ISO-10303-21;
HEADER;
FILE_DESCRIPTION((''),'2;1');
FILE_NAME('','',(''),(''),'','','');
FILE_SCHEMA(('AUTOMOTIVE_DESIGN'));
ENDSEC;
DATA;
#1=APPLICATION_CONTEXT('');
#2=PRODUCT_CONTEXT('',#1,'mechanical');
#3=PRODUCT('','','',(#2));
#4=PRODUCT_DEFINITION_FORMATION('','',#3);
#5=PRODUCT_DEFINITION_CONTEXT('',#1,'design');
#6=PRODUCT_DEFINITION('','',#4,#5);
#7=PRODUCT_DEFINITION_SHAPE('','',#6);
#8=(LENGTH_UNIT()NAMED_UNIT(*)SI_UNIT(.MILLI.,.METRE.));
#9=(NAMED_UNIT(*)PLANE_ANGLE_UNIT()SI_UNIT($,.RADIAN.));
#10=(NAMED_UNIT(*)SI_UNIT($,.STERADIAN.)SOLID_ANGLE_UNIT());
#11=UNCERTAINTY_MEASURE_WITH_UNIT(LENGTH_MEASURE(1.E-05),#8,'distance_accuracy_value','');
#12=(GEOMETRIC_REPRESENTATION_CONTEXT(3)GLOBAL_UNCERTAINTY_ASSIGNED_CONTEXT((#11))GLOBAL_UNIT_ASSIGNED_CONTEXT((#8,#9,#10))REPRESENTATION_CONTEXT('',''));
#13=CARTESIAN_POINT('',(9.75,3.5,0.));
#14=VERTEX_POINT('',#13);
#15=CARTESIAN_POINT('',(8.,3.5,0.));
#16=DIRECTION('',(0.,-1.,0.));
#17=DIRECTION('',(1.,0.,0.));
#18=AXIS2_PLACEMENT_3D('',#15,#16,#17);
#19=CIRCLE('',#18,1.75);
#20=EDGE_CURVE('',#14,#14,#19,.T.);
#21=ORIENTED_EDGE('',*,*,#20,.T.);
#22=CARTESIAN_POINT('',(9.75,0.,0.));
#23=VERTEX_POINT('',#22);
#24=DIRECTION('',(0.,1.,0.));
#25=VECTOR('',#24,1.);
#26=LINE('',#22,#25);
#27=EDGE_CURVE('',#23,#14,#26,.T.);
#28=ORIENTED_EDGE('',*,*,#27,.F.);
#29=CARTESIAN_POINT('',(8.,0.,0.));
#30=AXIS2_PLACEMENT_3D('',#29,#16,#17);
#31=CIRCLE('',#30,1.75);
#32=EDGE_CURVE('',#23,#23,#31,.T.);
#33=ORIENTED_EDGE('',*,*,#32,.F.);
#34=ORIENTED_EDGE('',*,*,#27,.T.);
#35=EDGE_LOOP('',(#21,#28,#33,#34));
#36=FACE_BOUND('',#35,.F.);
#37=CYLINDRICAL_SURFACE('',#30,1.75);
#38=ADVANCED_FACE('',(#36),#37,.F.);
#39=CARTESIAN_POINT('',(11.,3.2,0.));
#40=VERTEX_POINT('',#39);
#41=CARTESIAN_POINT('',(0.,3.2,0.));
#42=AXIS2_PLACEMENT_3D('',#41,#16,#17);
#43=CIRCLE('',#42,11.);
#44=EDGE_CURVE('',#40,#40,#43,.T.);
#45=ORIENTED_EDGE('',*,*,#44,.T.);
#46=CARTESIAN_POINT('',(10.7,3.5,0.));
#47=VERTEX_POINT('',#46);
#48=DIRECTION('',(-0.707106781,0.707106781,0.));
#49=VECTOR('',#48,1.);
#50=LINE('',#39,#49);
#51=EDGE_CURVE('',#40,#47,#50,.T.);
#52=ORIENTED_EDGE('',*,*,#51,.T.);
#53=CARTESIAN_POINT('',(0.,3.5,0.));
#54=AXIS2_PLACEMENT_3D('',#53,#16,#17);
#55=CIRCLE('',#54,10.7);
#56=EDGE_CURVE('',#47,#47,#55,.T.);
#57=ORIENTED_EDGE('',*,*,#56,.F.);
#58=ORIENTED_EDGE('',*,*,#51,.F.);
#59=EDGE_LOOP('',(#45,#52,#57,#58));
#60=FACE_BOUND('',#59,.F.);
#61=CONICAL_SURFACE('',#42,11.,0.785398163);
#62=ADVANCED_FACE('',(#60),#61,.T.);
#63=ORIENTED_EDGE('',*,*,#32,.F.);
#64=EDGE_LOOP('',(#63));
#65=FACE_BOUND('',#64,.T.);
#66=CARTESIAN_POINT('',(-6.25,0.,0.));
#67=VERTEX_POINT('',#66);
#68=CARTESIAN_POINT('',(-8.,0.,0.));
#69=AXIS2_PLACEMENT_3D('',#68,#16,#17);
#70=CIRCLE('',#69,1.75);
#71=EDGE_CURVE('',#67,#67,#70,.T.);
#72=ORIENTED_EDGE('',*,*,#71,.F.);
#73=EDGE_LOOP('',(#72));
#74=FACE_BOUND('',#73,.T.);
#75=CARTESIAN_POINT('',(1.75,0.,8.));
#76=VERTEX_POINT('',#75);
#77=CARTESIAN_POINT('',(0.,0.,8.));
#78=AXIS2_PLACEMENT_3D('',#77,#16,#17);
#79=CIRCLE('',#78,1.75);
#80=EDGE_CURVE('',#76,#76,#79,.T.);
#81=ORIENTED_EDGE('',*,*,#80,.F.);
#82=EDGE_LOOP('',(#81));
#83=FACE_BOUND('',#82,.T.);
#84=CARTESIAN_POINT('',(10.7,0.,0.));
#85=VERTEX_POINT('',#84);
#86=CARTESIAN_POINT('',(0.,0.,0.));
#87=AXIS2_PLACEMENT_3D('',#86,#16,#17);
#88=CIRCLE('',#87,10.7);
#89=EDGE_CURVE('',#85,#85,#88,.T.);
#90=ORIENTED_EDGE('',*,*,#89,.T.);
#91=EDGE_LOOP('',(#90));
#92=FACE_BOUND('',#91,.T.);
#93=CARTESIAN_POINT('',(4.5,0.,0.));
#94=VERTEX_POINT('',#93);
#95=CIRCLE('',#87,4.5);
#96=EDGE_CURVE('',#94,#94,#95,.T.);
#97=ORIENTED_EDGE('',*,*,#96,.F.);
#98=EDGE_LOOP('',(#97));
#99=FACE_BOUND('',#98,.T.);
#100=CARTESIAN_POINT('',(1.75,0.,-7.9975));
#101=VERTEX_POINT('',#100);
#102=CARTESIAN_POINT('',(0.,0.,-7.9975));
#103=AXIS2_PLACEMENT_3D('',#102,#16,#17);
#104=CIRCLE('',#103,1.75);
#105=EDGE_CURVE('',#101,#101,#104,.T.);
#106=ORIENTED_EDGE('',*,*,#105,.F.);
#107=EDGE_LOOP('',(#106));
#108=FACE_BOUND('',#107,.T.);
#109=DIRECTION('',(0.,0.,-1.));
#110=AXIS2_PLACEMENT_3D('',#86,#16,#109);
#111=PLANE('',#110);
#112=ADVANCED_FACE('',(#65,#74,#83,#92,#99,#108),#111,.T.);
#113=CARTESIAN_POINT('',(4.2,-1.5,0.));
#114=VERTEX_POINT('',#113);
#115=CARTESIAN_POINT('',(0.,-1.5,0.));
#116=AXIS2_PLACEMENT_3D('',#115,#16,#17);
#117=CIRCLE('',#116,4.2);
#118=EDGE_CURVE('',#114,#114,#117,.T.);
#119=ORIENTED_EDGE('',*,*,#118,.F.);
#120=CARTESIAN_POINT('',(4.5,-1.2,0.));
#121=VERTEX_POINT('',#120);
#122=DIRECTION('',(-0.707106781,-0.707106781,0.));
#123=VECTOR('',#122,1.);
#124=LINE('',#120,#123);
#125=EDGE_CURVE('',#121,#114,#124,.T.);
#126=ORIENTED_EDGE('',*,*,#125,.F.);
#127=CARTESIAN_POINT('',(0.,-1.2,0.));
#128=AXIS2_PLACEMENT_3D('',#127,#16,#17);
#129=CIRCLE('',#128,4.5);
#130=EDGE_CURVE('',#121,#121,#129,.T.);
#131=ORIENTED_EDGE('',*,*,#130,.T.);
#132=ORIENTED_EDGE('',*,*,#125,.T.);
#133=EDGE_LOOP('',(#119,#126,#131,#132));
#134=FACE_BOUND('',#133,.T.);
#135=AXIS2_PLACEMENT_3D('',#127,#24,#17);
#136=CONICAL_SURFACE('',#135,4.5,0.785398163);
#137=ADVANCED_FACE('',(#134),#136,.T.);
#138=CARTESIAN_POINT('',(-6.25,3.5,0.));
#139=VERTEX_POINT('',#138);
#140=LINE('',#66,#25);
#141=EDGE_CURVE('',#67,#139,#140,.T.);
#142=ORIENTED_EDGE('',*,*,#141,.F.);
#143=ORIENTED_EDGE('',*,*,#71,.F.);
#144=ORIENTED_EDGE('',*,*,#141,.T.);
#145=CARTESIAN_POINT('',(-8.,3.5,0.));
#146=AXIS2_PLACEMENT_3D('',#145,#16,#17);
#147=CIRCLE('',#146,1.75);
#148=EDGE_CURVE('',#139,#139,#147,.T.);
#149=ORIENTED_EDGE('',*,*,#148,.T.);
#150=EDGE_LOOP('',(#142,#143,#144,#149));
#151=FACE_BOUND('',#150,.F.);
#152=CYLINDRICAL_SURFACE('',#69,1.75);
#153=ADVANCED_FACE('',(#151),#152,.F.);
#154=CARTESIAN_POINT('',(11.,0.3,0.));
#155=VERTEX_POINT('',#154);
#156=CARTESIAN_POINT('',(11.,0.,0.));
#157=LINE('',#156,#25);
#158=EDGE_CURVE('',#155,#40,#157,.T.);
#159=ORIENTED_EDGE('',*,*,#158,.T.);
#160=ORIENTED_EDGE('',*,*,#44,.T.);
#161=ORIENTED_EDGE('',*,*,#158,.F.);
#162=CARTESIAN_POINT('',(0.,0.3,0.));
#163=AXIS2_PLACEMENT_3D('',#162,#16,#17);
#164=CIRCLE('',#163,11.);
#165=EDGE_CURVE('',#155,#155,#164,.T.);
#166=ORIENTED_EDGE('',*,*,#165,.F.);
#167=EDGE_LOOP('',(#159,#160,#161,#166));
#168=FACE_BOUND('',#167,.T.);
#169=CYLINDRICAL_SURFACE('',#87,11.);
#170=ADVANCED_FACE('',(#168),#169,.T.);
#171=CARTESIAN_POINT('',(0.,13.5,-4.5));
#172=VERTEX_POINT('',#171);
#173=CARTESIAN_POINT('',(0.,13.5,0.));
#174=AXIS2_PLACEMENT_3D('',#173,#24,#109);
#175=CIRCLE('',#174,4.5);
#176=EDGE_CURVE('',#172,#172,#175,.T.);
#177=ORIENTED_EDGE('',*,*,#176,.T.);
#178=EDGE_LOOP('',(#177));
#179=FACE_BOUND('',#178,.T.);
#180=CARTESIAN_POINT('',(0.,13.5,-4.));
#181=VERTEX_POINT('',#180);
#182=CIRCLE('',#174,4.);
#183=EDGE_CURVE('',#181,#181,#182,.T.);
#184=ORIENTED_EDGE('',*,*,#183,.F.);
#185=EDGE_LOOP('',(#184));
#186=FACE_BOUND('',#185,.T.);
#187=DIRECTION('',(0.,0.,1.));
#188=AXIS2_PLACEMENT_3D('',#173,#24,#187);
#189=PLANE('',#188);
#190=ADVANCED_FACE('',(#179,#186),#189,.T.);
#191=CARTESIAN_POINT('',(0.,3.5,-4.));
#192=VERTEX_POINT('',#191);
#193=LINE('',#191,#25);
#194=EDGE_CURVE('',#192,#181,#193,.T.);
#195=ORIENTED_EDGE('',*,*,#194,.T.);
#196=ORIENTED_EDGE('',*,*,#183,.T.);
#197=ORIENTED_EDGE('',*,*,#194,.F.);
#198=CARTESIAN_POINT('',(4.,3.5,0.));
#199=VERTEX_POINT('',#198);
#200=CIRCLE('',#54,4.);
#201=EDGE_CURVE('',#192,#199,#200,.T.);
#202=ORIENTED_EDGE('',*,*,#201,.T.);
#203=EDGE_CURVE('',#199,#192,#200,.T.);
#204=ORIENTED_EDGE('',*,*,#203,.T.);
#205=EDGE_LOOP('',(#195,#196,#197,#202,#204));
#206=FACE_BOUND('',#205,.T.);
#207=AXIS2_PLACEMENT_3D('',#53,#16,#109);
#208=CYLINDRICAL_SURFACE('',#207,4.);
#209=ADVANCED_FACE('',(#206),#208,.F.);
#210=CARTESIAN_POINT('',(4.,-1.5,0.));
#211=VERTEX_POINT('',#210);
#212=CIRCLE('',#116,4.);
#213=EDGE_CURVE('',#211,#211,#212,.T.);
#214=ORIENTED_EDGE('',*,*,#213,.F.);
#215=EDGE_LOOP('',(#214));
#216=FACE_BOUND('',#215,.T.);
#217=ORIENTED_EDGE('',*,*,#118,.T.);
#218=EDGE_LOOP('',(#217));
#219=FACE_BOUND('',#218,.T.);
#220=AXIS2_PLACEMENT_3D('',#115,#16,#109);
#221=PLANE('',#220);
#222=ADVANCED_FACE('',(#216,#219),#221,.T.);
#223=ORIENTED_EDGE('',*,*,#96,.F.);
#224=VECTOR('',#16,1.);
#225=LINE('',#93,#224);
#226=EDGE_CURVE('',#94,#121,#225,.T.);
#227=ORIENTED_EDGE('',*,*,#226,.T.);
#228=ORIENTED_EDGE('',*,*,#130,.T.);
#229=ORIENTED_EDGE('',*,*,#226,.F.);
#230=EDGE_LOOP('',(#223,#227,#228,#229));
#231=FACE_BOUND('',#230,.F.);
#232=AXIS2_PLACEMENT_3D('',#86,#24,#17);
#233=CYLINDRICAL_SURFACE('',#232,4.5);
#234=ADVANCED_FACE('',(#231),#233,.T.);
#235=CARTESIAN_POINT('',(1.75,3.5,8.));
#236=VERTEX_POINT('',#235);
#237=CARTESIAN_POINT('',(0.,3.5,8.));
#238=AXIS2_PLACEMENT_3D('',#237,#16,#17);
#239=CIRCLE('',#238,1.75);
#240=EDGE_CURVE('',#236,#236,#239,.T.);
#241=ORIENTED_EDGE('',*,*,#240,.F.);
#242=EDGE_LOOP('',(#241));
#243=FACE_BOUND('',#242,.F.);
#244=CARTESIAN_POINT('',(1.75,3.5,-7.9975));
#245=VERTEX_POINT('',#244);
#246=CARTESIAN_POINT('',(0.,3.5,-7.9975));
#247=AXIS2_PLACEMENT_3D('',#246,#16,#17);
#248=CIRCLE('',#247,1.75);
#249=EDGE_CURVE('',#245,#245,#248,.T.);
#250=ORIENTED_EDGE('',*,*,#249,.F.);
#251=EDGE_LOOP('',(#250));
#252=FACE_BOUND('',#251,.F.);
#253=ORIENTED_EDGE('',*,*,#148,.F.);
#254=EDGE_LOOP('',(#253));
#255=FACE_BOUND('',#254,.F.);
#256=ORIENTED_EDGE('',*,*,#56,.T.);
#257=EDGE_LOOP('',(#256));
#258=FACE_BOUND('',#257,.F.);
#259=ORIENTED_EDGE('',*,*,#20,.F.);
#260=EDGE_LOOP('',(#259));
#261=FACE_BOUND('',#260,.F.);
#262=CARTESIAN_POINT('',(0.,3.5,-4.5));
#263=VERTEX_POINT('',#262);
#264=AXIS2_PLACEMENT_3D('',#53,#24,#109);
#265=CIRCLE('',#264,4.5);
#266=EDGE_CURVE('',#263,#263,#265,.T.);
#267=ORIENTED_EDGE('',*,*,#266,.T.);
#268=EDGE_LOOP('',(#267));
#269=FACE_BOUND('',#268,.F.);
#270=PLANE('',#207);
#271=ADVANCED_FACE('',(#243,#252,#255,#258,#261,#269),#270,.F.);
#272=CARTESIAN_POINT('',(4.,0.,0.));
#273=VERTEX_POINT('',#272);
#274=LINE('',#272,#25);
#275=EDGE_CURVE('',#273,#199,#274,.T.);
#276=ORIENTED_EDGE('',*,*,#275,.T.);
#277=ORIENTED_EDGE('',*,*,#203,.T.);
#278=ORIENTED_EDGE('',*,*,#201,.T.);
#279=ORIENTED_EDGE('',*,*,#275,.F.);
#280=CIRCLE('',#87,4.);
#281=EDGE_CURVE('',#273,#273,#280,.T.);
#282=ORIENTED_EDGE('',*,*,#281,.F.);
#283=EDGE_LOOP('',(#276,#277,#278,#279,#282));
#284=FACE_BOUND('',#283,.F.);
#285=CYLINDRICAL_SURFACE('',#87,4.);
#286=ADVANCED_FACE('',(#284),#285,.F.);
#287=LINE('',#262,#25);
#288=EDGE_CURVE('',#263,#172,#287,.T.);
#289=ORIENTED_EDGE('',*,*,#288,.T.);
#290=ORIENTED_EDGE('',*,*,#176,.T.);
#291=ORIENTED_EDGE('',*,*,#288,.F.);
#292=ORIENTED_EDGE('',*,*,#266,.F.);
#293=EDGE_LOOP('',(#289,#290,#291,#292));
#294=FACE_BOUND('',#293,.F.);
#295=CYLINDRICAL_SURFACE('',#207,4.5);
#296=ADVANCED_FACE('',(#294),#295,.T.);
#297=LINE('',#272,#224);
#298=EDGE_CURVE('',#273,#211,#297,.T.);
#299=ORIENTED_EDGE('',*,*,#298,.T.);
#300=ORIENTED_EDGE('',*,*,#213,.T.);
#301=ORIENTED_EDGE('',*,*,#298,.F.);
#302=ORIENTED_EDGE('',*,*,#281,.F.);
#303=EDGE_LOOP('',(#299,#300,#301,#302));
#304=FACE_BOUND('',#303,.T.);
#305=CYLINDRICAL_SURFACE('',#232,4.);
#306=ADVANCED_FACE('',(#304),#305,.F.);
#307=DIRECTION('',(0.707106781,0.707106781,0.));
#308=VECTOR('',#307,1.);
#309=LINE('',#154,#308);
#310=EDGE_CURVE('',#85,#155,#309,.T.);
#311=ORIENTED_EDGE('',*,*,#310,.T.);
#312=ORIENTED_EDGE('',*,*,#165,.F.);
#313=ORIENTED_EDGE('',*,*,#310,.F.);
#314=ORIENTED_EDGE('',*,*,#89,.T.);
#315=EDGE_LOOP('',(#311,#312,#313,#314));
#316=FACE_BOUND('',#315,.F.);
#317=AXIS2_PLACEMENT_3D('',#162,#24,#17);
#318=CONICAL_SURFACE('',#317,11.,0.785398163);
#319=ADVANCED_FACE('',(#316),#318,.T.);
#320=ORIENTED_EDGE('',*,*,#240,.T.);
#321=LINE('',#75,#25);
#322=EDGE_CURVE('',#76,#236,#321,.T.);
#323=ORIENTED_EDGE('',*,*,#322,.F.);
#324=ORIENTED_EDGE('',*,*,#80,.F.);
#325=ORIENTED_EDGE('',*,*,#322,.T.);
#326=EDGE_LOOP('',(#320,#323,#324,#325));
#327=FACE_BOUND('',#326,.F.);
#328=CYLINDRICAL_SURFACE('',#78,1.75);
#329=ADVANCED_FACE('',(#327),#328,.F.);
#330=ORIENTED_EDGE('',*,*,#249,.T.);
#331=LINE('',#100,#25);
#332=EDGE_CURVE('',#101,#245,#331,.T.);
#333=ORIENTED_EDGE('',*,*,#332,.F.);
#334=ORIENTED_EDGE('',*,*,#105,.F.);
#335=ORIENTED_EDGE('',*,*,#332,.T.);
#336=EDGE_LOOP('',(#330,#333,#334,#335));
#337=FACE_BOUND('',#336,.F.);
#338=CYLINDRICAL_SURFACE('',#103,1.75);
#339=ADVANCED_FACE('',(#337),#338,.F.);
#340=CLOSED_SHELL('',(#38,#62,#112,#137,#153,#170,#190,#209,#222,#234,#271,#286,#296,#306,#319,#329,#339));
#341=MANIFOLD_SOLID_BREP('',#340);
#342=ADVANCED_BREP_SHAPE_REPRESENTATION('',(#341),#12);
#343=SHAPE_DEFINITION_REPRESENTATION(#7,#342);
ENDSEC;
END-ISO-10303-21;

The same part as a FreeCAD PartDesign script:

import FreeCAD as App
import Part
import Sketcher
from FreeCAD import Vector
Q = App.Units.Quantity


def edges_at(feature, points):
    """Names of the edges that pass closest to the given points."""
    edges = feature.Shape.Edges
    near = lambda p: min(range(len(edges)), key=lambda i: edges[i].distToShape(Part.Vertex(*p))[0])
    return sorted({f"Edge{near(p) + 1}" for p in points})

doc = App.newDocument("Part")
params = doc.addObject("Spreadsheet::Sheet", "Params")
for row, (alias, value) in enumerate([
    ("sketch1_diameter", "22 mm"),
    ("sketch1_diameter2", "8 mm"),
    ("sketch1_diameter3", "3.5 mm"),
    ("pad1_length", "3.5 mm"),
    ("sketch2_diameter", "9 mm"),
    ("sketch2_diameter2", "8 mm"),
    ("pad2_length", "1.5 mm"),
    ("chamfer_size", "0.3 mm"),
    ("chamfer2_size", "0.3 mm"),
    ("sketch3_diameter", "9 mm"),
    ("sketch3_diameter2", "8 mm"),
    ("pad3_length", "10 mm"),
], start=1):
    params.set(f"A{row}", alias)
    params.set(f"B{row}", "=" + value)
    params.setAlias(f"B{row}", alias)

body = doc.addObject("PartDesign::Body", "Body")

# Sketch on XZ plane
sketch1 = doc.addObject("Sketcher::SketchObject", "Sketch")
body.addObject(sketch1)
sketch1.AttachmentSupport = (doc.XZ_Plane, [""])
sketch1.MapMode = "FlatFace"
sketch1.addGeometry(Part.Circle(Vector(0, 0, 0), Vector(0, 0, 1), 11), False)
sketch1.addGeometry(Part.Circle(Vector(0, -7.9975, 0), Vector(0, 0, 1), 1.75), False)
sketch1.addGeometry(Part.Circle(Vector(-8, 0, 0), Vector(0, 0, 1), 1.75), False)
sketch1.addGeometry(Part.Circle(Vector(0, 0, 0), Vector(0, 0, 1), 4), False)
sketch1.addGeometry(Part.Circle(Vector(8, 0, 0), Vector(0, 0, 1), 1.75), False)
sketch1.addGeometry(Part.Circle(Vector(0, 8, 0), Vector(0, 0, 1), 1.75), False)
sketch1.addConstraint(Sketcher.Constraint("Coincident", 0, 3, -1, 1))
sketch1.addConstraint(Sketcher.Constraint("Coincident", 3, 3, -1, 1))
sketch1.addConstraint(Sketcher.Constraint("Equal", 1, 2))
sketch1.addConstraint(Sketcher.Constraint("Equal", 2, 4))
sketch1.addConstraint(Sketcher.Constraint("Equal", 4, 5))
sketch1.addConstraint(Sketcher.Constraint("Symmetric", 2, 3, 4, 3, -1, 1))
sketch1.addConstraint(Sketcher.Constraint("PointOnObject", 1, 3, -2))
sketch1.addConstraint(Sketcher.Constraint("PointOnObject", 2, 3, -1))
sketch1.addConstraint(Sketcher.Constraint("PointOnObject", 5, 3, -2))
sketch1.addConstraint(Sketcher.Constraint("Diameter", 0, Q("22 mm")))
sketch1.addConstraint(Sketcher.Constraint("Diameter", 3, Q("8 mm")))
sketch1.addConstraint(Sketcher.Constraint("Diameter", 1, Q("3.5 mm")))
sketch1.addConstraint(Sketcher.Constraint("DistanceX", 2, 3, -1, 1, Q("8 mm")))
sketch1.addConstraint(Sketcher.Constraint("DistanceY", -1, 1, 5, 3, Q("8 mm")))
sketch1.addConstraint(Sketcher.Constraint("DistanceY", 1, 3, -1, 1, Q("7.9975 mm")))
sketch1.setExpression("Constraints[9]", "Params.sketch1_diameter")
sketch1.setExpression("Constraints[10]", "Params.sketch1_diameter2")
sketch1.setExpression("Constraints[11]", "Params.sketch1_diameter3")
pad1 = doc.addObject("PartDesign::Pad", "Pad")
body.addObject(pad1)
pad1.Profile = sketch1
pad1.setExpression("Length", "Params.pad1_length")
pad1.Reversed = True

# Sketch on XZ plane
sketch2 = doc.addObject("Sketcher::SketchObject", "Sketch001")
body.addObject(sketch2)
sketch2.AttachmentSupport = (doc.XZ_Plane, [""])
sketch2.MapMode = "FlatFace"
sketch2.addGeometry(Part.Circle(Vector(0, 0, 0), Vector(0, 0, 1), 4.5), False)
sketch2.addGeometry(Part.Circle(Vector(0, 0, 0), Vector(0, 0, 1), 4), False)
sketch2.addConstraint(Sketcher.Constraint("Coincident", 0, 3, -1, 1))
sketch2.addConstraint(Sketcher.Constraint("Coincident", 1, 3, -1, 1))
sketch2.addConstraint(Sketcher.Constraint("Diameter", 0, Q("9 mm")))
sketch2.addConstraint(Sketcher.Constraint("Diameter", 1, Q("8 mm")))
sketch2.setExpression("Constraints[2]", "Params.sketch2_diameter")
sketch2.setExpression("Constraints[3]", "Params.sketch2_diameter2")
pad2 = doc.addObject("PartDesign::Pad", "Pad001")
body.addObject(pad2)
pad2.Profile = sketch2
pad2.setExpression("Length", "Params.pad2_length")
doc.recompute()

chamfer = doc.addObject("PartDesign::Chamfer", "Chamfer")
body.addObject(chamfer)
chamfer.Base = (pad2, edges_at(pad2, [(-4.5, -1.5, 0)]))
chamfer.setExpression("Size", "Params.chamfer_size")
doc.recompute()

chamfer2 = doc.addObject("PartDesign::Chamfer", "Chamfer001")
body.addObject(chamfer2)
chamfer2.Base = (chamfer, edges_at(chamfer, [(-11, 0, 0), (-11, 3.5, 0)]))
chamfer2.setExpression("Size", "Params.chamfer2_size")

# Sketch on XZ plane
sketch3 = doc.addObject("Sketcher::SketchObject", "Sketch002")
body.addObject(sketch3)
sketch3.AttachmentSupport = (doc.XZ_Plane, [""])
sketch3.MapMode = "FlatFace"
sketch3.AttachmentOffset = App.Placement(Vector(0, 0, -3.5), App.Rotation())
sketch3.addGeometry(Part.Circle(Vector(0, 0, 0), Vector(0, 0, 1), 4.5), False)
sketch3.addGeometry(Part.Circle(Vector(0, 0, 0), Vector(0, 0, 1), 4), False)
sketch3.addConstraint(Sketcher.Constraint("Coincident", 0, 3, -1, 1))
sketch3.addConstraint(Sketcher.Constraint("Coincident", 1, 3, -1, 1))
sketch3.addConstraint(Sketcher.Constraint("Diameter", 0, Q("9 mm")))
sketch3.addConstraint(Sketcher.Constraint("Diameter", 1, Q("8 mm")))
sketch3.setExpression("Constraints[2]", "Params.sketch3_diameter")
sketch3.setExpression("Constraints[3]", "Params.sketch3_diameter2")
pad3 = doc.addObject("PartDesign::Pad", "Pad002")
body.addObject(pad3)
pad3.Profile = sketch3
pad3.setExpression("Length", "Params.pad3_length")
pad3.Reversed = True

doc.recompute()
